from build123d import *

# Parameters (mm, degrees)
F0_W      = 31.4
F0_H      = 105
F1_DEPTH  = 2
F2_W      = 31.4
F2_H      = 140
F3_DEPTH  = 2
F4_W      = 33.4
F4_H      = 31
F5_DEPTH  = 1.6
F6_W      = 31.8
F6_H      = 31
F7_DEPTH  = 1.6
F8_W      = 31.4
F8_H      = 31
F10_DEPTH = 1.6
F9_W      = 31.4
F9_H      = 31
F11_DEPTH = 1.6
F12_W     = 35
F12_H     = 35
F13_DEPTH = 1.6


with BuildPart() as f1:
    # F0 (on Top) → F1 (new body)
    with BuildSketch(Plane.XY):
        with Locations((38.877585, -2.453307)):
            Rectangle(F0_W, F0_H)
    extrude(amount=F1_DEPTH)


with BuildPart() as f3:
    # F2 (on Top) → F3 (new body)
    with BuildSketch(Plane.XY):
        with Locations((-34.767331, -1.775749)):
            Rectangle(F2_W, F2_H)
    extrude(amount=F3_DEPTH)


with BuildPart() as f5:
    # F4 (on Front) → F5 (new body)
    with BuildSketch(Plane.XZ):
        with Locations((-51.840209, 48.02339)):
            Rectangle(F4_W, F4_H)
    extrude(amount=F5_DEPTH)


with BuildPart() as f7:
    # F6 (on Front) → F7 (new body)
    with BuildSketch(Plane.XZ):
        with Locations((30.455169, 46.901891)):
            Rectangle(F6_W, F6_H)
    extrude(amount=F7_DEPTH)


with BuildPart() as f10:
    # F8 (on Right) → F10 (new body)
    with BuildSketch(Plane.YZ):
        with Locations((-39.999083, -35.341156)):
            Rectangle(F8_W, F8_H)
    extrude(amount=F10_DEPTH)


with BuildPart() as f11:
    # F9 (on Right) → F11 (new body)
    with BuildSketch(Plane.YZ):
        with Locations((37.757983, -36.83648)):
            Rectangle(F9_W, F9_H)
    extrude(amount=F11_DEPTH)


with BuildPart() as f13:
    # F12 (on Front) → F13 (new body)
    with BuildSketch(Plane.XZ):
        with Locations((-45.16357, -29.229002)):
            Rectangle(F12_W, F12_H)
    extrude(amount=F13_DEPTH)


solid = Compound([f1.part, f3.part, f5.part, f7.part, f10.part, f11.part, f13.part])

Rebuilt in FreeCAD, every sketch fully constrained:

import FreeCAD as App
import Part
import Sketcher

V = App.Vector


def add_polygon(sketch, points):
    """Adds a closed chain of lines whose ends are joined by coincident constraints."""
    first, n = sketch.GeometryCount, len(points)
    for a, b in zip(points, points[1:] + points[:1]):
        sketch.addGeometry(Part.LineSegment(App.Vector(*a, 0), App.Vector(*b, 0)), False)
    for i in range(n):
        sketch.addConstraint(Sketcher.Constraint("Coincident", first + i, 2, first + (i + 1) % n, 1))

doc = App.newDocument("Part")
body = doc.addObject("PartDesign::Body", "Body")

sketch1 = body.newObject("Sketcher::SketchObject", "Sketch")
sketch1.AttachmentSupport = (doc.getObject("XY_Plane"), [""])
sketch1.MapMode = "FlatFace"
add_polygon(sketch1, [(23.177585, 50.046693), (23.177585, -54.953307), (54.577585, -54.953307), (54.577585, 50.046693)])
sketch1.addConstraint(Sketcher.Constraint("Vertical", 0))
sketch1.addConstraint(Sketcher.Constraint("Horizontal", 1))
sketch1.addConstraint(Sketcher.Constraint("Vertical", 2))
sketch1.addConstraint(Sketcher.Constraint("Horizontal", 3))
sketch1.addConstraint(Sketcher.Constraint("DistanceY", 0, 2, 0, 1, 105.0))
sketch1.addConstraint(Sketcher.Constraint("DistanceX", 1, 1, 1, 2, 31.4))
sketch1.addConstraint(Sketcher.Constraint("DistanceX", -1, 1, 0, 2, 23.177585))
sketch1.addConstraint(Sketcher.Constraint("DistanceY", 0, 2, -1, 1, 54.953307))
pad1 = body.newObject("PartDesign::Pad", "Pad")
pad1.Profile = sketch1
pad1.Length = 2
body2 = doc.addObject("PartDesign::Body", "Body001")

sketch2 = body2.newObject("Sketcher::SketchObject", "Sketch001")
sketch2.AttachmentSupport = (doc.getObject("XY_Plane001"), [""])
sketch2.MapMode = "FlatFace"
add_polygon(sketch2, [(-50.467331, 68.224251), (-50.467331, -71.775749), (-19.067331, -71.775749), (-19.067331, 68.224251)])
sketch2.addConstraint(Sketcher.Constraint("Vertical", 0))
sketch2.addConstraint(Sketcher.Constraint("Horizontal", 1))
sketch2.addConstraint(Sketcher.Constraint("Vertical", 2))
sketch2.addConstraint(Sketcher.Constraint("Horizontal", 3))
sketch2.addConstraint(Sketcher.Constraint("DistanceY", 0, 2, 0, 1, 140.0))
sketch2.addConstraint(Sketcher.Constraint("DistanceX", 1, 1, 1, 2, 31.4))
sketch2.addConstraint(Sketcher.Constraint("DistanceX", 0, 2, -1, 1, 50.467331))
sketch2.addConstraint(Sketcher.Constraint("DistanceY", 0, 2, -1, 1, 71.775749))
pad2 = body2.newObject("PartDesign::Pad", "Pad001")
pad2.Profile = sketch2
pad2.Length = 2
body3 = doc.addObject("PartDesign::Body", "Body002")

sketch3 = body3.newObject("Sketcher::SketchObject", "Sketch002")
sketch3.AttachmentSupport = (doc.getObject("XZ_Plane002"), [""])
sketch3.MapMode = "FlatFace"
add_polygon(sketch3, [(-68.540209, 63.52339), (-68.540209, 32.52339), (-35.140209, 32.52339), (-35.140209, 63.52339)])
sketch3.addConstraint(Sketcher.Constraint("Vertical", 0))
sketch3.addConstraint(Sketcher.Constraint("Horizontal", 1))
sketch3.addConstraint(Sketcher.Constraint("Vertical", 2))
sketch3.addConstraint(Sketcher.Constraint("Horizontal", 3))
sketch3.addConstraint(Sketcher.Constraint("DistanceY", 0, 2, 0, 1, 31.0))
sketch3.addConstraint(Sketcher.Constraint("DistanceX", 1, 1, 1, 2, 33.4))
sketch3.addConstraint(Sketcher.Constraint("DistanceX", 0, 2, -1, 1, 68.540209))
sketch3.addConstraint(Sketcher.Constraint("DistanceY", -1, 1, 0, 2, 32.52339))
pad3 = body3.newObject("PartDesign::Pad", "Pad002")
pad3.Profile = sketch3
pad3.Length = 1.6
body4 = doc.addObject("PartDesign::Body", "Body003")

sketch4 = body4.newObject("Sketcher::SketchObject", "Sketch003")
sketch4.AttachmentSupport = (doc.getObject("XZ_Plane003"), [""])
sketch4.MapMode = "FlatFace"
add_polygon(sketch4, [(14.555169, 62.401891), (14.555169, 31.401891), (46.355169, 31.401891), (46.355169, 62.401891)])
sketch4.addConstraint(Sketcher.Constraint("Vertical", 0))
sketch4.addConstraint(Sketcher.Constraint("Horizontal", 1))
sketch4.addConstraint(Sketcher.Constraint("Vertical", 2))
sketch4.addConstraint(Sketcher.Constraint("Horizontal", 3))
sketch4.addConstraint(Sketcher.Constraint("DistanceY", 0, 2, 0, 1, 31.0))
sketch4.addConstraint(Sketcher.Constraint("DistanceX", 1, 1, 1, 2, 31.8))
sketch4.addConstraint(Sketcher.Constraint("DistanceX", -1, 1, 0, 2, 14.555169))
sketch4.addConstraint(Sketcher.Constraint("DistanceY", -1, 1, 0, 2, 31.401891))
pad4 = body4.newObject("PartDesign::Pad", "Pad003")
pad4.Profile = sketch4
pad4.Length = 1.6
body5 = doc.addObject("PartDesign::Body", "Body004")

sketch5 = body5.newObject("Sketcher::SketchObject", "Sketch004")
sketch5.AttachmentSupport = (doc.getObject("YZ_Plane004"), [""])
sketch5.MapMode = "FlatFace"
add_polygon(sketch5, [(-55.699083, -19.841156), (-55.699083, -50.841156), (-24.299083, -50.841156), (-24.299083, -19.841156)])
sketch5.addConstraint(Sketcher.Constraint("Vertical", 0))
sketch5.addConstraint(Sketcher.Constraint("Horizontal", 1))
sketch5.addConstraint(Sketcher.Constraint("Vertical", 2))
sketch5.addConstraint(Sketcher.Constraint("Horizontal", 3))
sketch5.addConstraint(Sketcher.Constraint("DistanceY", 0, 2, 0, 1, 31.0))
sketch5.addConstraint(Sketcher.Constraint("DistanceX", 1, 1, 1, 2, 31.4))
sketch5.addConstraint(Sketcher.Constraint("DistanceX", 0, 2, -1, 1, 55.699083))
sketch5.addConstraint(Sketcher.Constraint("DistanceY", 0, 2, -1, 1, 50.841156))
pad5 = body5.newObject("PartDesign::Pad", "Pad004")
pad5.Profile = sketch5
pad5.Length = 1.6
body6 = doc.addObject("PartDesign::Body", "Body005")

sketch6 = body6.newObject("Sketcher::SketchObject", "Sketch005")
sketch6.AttachmentSupport = (doc.getObject("YZ_Plane005"), [""])
sketch6.MapMode = "FlatFace"
add_polygon(sketch6, [(22.057983, -21.33648), (22.057983, -52.33648), (53.457983, -52.33648), (53.457983, -21.33648)])
sketch6.addConstraint(Sketcher.Constraint("Vertical", 0))
sketch6.addConstraint(Sketcher.Constraint("Horizontal", 1))
sketch6.addConstraint(Sketcher.Constraint("Vertical", 2))
sketch6.addConstraint(Sketcher.Constraint("Horizontal", 3))
sketch6.addConstraint(Sketcher.Constraint("DistanceY", 0, 2, 0, 1, 31.0))
sketch6.addConstraint(Sketcher.Constraint("DistanceX", 1, 1, 1, 2, 31.4))
sketch6.addConstraint(Sketcher.Constraint("DistanceY", 0, 2, -1, 1, 52.33648))
sketch6.addConstraint(Sketcher.Constraint("DistanceX", -1, 1, 0, 2, 22.057983))
pad6 = body6.newObject("PartDesign::Pad", "Pad005")
pad6.Profile = sketch6
pad6.Length = 1.6
body7 = doc.addObject("PartDesign::Body", "Body006")

sketch7 = body7.newObject("Sketcher::SketchObject", "Sketch006")
sketch7.AttachmentSupport = (doc.getObject("XZ_Plane006"), [""])
sketch7.MapMode = "FlatFace"
add_polygon(sketch7, [(-62.66357, -11.729002), (-62.66357, -46.729002), (-27.66357, -46.729002), (-27.66357, -11.729002)])
sketch7.addConstraint(Sketcher.Constraint("Vertical", 0))
sketch7.addConstraint(Sketcher.Constraint("Horizontal", 1))
sketch7.addConstraint(Sketcher.Constraint("Vertical", 2))
sketch7.addConstraint(Sketcher.Constraint("Horizontal", 3))
sketch7.addConstraint(Sketcher.Constraint("Equal", 3, 0))
sketch7.addConstraint(Sketcher.Constraint("DistanceX", 1, 1, 1, 2, 35.0))
sketch7.addConstraint(Sketcher.Constraint("DistanceX", 0, 2, -1, 1, 62.66357))
sketch7.addConstraint(Sketcher.Constraint("DistanceY", 0, 2, -1, 1, 46.729002))
pad7 = body7.newObject("PartDesign::Pad", "Pad006")
pad7.Profile = sketch7
pad7.Length = 1.6

doc.recompute()
